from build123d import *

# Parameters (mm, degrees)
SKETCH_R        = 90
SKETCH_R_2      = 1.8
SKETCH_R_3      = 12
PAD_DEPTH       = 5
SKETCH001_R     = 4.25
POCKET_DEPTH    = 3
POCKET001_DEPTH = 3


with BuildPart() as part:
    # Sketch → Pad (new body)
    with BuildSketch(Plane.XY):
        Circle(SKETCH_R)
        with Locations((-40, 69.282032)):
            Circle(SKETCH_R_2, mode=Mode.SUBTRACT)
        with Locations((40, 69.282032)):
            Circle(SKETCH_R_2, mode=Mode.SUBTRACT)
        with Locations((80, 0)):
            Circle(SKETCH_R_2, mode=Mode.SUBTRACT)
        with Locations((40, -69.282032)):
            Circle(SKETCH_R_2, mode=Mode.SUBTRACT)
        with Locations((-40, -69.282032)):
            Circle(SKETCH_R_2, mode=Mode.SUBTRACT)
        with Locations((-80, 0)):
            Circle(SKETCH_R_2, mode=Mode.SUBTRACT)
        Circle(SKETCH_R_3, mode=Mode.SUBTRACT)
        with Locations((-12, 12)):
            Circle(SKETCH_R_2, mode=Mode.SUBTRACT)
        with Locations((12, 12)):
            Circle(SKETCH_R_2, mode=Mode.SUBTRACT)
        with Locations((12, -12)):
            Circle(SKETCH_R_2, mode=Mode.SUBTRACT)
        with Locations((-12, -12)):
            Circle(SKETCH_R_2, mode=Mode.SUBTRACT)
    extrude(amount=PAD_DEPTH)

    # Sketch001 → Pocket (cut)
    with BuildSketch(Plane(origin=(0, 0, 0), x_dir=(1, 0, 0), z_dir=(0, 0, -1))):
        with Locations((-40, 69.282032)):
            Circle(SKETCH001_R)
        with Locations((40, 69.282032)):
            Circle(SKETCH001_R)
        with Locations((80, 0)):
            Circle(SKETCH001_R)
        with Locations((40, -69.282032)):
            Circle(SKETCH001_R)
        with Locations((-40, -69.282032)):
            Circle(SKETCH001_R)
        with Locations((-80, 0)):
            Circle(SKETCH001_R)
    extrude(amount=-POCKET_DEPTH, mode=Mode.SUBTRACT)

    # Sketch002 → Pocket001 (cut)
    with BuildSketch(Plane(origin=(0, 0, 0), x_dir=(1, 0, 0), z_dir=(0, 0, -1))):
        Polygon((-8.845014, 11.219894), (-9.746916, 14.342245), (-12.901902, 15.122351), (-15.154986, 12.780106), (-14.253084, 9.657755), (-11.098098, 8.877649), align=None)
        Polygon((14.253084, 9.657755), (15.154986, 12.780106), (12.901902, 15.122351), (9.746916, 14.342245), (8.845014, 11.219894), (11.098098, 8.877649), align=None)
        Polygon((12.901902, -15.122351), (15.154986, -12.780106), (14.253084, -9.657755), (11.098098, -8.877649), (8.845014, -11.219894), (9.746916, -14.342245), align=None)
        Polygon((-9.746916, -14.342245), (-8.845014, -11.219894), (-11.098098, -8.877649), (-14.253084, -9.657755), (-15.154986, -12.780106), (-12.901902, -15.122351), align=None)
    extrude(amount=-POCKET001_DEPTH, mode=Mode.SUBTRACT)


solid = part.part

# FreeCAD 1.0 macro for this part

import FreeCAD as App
import Part
import Sketcher


def add_polygon(sketch, points):
    """Adds a closed chain of lines whose ends are joined by coincident constraints."""
    first, n = sketch.GeometryCount, len(points)
    for a, b in zip(points, points[1:] + points[:1]):
        sketch.addGeometry(Part.LineSegment(App.Vector(*a, 0), App.Vector(*b, 0)), False)
    for i in range(n):
        sketch.addConstraint(Sketcher.Constraint("Coincident", first + i, 2, first + (i + 1) % n, 1))

doc = App.newDocument("Part")
params = doc.addObject("Spreadsheet::Sheet", "Params")
for row, (alias, value) in enumerate([
    ("sketch1_diameter", "180 mm"),
    ("sketch1_diameter2", "24 mm"),
    ("sketch1_diameter3", "3.6 mm"),
    ("pad1_length", "5 mm"),
    ("sketch2_diameter", "8.5 mm"),
    ("pocket1_length", "3 mm"),
    ("sketch3_length", "3.25 mm"),
    ("pocket2_length", "3 mm"),
], start=1):
    params.set(f"A{row}", alias)
    params.set(f"B{row}", "=" + value)
    params.setAlias(f"B{row}", alias)

body = doc.addObject("PartDesign::Body", "Body")

# Sketch on XY plane
sketch1 = doc.addObject("Sketcher::SketchObject", "Sketch")
body.addObject(sketch1)
sketch1.AttachmentSupport = (doc.XY_Plane, [""])
sketch1.MapMode = "FlatFace"
sketch1.addGeometry([
    Part.Circle(App.Vector(0, 0, 0), App.Vector(0, 0, 1), 90),  # 0
    Part.Circle(App.Vector(-40, -69.3, 0), App.Vector(0, 0, 1), 1.8),  # 1
    Part.Circle(App.Vector(-80, 0, 0), App.Vector(0, 0, 1), 1.8),  # 2
    Part.Circle(App.Vector(-12, -12, 0), App.Vector(0, 0, 1), 1.8),  # 3
    Part.Circle(App.Vector(40, -69.3, 0), App.Vector(0, 0, 1), 1.8),  # 4
    Part.Circle(App.Vector(12, -12, 0), App.Vector(0, 0, 1), 1.8),  # 5
    Part.Circle(App.Vector(0, 0, 0), App.Vector(0, 0, 1), 12),  # 6
    Part.Circle(App.Vector(80, 0, 0), App.Vector(0, 0, 1), 1.8),  # 7
    Part.Circle(App.Vector(-12, 12, 0), App.Vector(0, 0, 1), 1.8),  # 8
    Part.Circle(App.Vector(-40, 69.3, 0), App.Vector(0, 0, 1), 1.8),  # 9
    Part.Circle(App.Vector(12, 12, 0), App.Vector(0, 0, 1), 1.8),  # 10
    Part.Circle(App.Vector(40, 69.3, 0), App.Vector(0, 0, 1), 1.8),  # 11
], False)
sketch1.addConstraint([
    Sketcher.Constraint("Coincident", 0, 3, -1, 1),
    Sketcher.Constraint("Coincident", 6, 3, -1, 1),
    Sketcher.Constraint("Equal", 1, 2),
    Sketcher.Constraint("Equal", 2, 3),
    Sketcher.Constraint("Equal", 3, 4),
    Sketcher.Constraint("Equal", 4, 5),
    Sketcher.Constraint("Equal", 5, 7),
    Sketcher.Constraint("Equal", 7, 8),
    Sketcher.Constraint("Equal", 8, 9),
    Sketcher.Constraint("Equal", 9, 10),
    Sketcher.Constraint("Equal", 10, 11),
    Sketcher.Constraint("Symmetric", 2, 3, 7, 3, -1, 1),
    Sketcher.Constraint("Symmetric", 5, 3, 8, 3, -1, 1),
    Sketcher.Constraint("Symmetric", 4, 3, 9, 3, -1, 1),
    Sketcher.Constraint("Symmetric", 3, 3, 10, 3, -1, 1),
    Sketcher.Constraint("Symmetric", 1, 3, 11, 3, -1, 1),
    Sketcher.Constraint("Symmetric", 1, 3, 4, 3, -2),
    Sketcher.Constraint("Symmetric", 3, 3, 5, 3, -2),
    Sketcher.Constraint("PointOnObject", 2, 3, -1),
    Sketcher.Constraint("Diameter", 0, 180.0),
    Sketcher.Constraint("Diameter", 6, 24.0),
    Sketcher.Constraint("Diameter", 1, 3.6),
    Sketcher.Constraint("DistanceX", 1, 3, -1, 1, 40.0),
    Sketcher.Constraint("DistanceX", 2, 3, -1, 1, 80.0),
    Sketcher.Constraint("DistanceX", 3, 3, -1, 1, 12.0),
    Sketcher.Constraint("DistanceY", 3, 3, -1, 1, 12.0),
    Sketcher.Constraint("DistanceY", 1, 3, -1, 1, 69.282032),
])
sketch1.setExpression("Constraints[19]", "Params.sketch1_diameter")
sketch1.setExpression("Constraints[20]", "Params.sketch1_diameter2")
sketch1.setExpression("Constraints[21]", "Params.sketch1_diameter3")
pad1 = doc.addObject("PartDesign::Pad", "Pad")
body.addObject(pad1)
pad1.Profile = sketch1
pad1.setExpression("Length", "Params.pad1_length")

# Sketch on XY plane
sketch2 = doc.addObject("Sketcher::SketchObject", "Sketch001")
body.addObject(sketch2)
sketch2.AttachmentSupport = (doc.XY_Plane, [""])
sketch2.MapMode = "FlatFace"
sketch2.addGeometry([
    Part.Circle(App.Vector(-40, -69.3, 0), App.Vector(0, 0, 1), 4.2),  # 0
    Part.Circle(App.Vector(40, -69.3, 0), App.Vector(0, 0, 1), 4.2),  # 1
    Part.Circle(App.Vector(80, 0, 0), App.Vector(0, 0, 1), 4.2),  # 2
    Part.Circle(App.Vector(40, 69.3, 0), App.Vector(0, 0, 1), 4.2),  # 3
    Part.Circle(App.Vector(-40, 69.3, 0), App.Vector(0, 0, 1), 4.2),  # 4
    Part.Circle(App.Vector(-80, 0, 0), App.Vector(0, 0, 1), 4.2),  # 5
], False)
sketch2.addConstraint([
    Sketcher.Constraint("Equal", 0, 1),
    Sketcher.Constraint("Equal", 1, 2),
    Sketcher.Constraint("Equal", 2, 3),
    Sketcher.Constraint("Equal", 3, 4),
    Sketcher.Constraint("Equal", 4, 5),
    Sketcher.Constraint("Symmetric", 0, 3, 3, 3, -1, 1),
    Sketcher.Constraint("Symmetric", 1, 3, 4, 3, -1, 1),
    Sketcher.Constraint("Symmetric", 2, 3, 5, 3, -1, 1),
    Sketcher.Constraint("Symmetric", 0, 3, 1, 3, -2),
    Sketcher.Constraint("PointOnObject", 2, 3, -1),
    Sketcher.Constraint("Diameter", 0, 8.5),
    Sketcher.Constraint("DistanceX", 0, 3, -1, 1, 40.0),
    Sketcher.Constraint("DistanceX", -1, 1, 2, 3, 80.0),
    Sketcher.Constraint("DistanceY", 0, 3, -1, 1, 69.282032),
])
sketch2.setExpression("Constraints[10]", "Params.sketch2_diameter")
pocket1 = doc.addObject("PartDesign::Pocket", "Pocket")
body.addObject(pocket1)
pocket1.Profile = sketch2
pocket1.setExpression("Length", "Params.pocket1_length")
pocket1.Reversed = True

# Sketch on XY plane
sketch3 = doc.addObject("Sketcher::SketchObject", "Sketch002")
body.addObject(sketch3)
sketch3.AttachmentSupport = (doc.XY_Plane, [""])
sketch3.MapMode = "FlatFace"
add_polygon(sketch3, [(-8.8, -11.2), (-9.7, -14.3), (-12.9, -15.1), (-15.2, -12.8), (-14.3, -9.7), (-11.1, -8.9)])  # lines 0-5
add_polygon(sketch3, [(14.3, -9.7), (15.2, -12.8), (12.9, -15.1), (9.7, -14.3), (8.8, -11.2), (11.1, -8.9)])  # lines 6-11
add_polygon(sketch3, [(12.9, 15.1), (15.2, 12.8), (14.3, 9.7), (11.1, 8.9), (8.8, 11.2), (9.7, 14.3)])  # lines 12-17
add_polygon(sketch3, [(-9.7, 14.3), (-8.8, 11.2), (-11.1, 8.9), (-14.3, 9.7), (-15.2, 12.8), (-12.9, 15.1)])  # lines 18-23
sketch3.addConstraint([
    Sketcher.Constraint("Symmetric", 2, 2, 12, 2, -1, 1),
    Sketcher.Constraint("Symmetric", 3, 2, 13, 2, -1, 1),
    Sketcher.Constraint("Symmetric", 4, 2, 14, 2, -1, 1),
    Sketcher.Constraint("Symmetric", 5, 2, 15, 2, -1, 1),
    Sketcher.Constraint("Symmetric", 0, 2, 16, 2, -1, 1),
    Sketcher.Constraint("Symmetric", 1, 2, 17, 2, -1, 1),
    Sketcher.Constraint("Symmetric", 9, 2, 18, 2, -1, 1),
    Sketcher.Constraint("Symmetric", 10, 2, 19, 2, -1, 1),
    Sketcher.Constraint("Symmetric", 11, 2, 20, 2, -1, 1),
    Sketcher.Constraint("Symmetric", 6, 2, 21, 2, -1, 1),
    Sketcher.Constraint("Symmetric", 7, 2, 22, 2, -1, 1),
    Sketcher.Constraint("Symmetric", 8, 2, 23, 2, -1, 1),
    Sketcher.Constraint("Symmetric", 2, 2, 6, 2, -2),
    Sketcher.Constraint("Symmetric", 1, 2, 7, 2, -2),
    Sketcher.Constraint("Symmetric", 0, 2, 8, 2, -2),
    Sketcher.Constraint("Symmetric", 5, 2, 9, 2, -2),
    Sketcher.Constraint("Symmetric", 4, 2, 10, 2, -2),
    Sketcher.Constraint("Symmetric", 3, 2, 11, 2, -2),
    Sketcher.Constraint("Parallel", 0, 3),
    Sketcher.Constraint("Parallel", 1, 4),
    Sketcher.Constraint("Parallel", 2, 5),
    Sketcher.Constraint("Equal", 0, 1),
    Sketcher.Constraint("Equal", 1, 2),
    Sketcher.Constraint("Equal", 2, 3),
    Sketcher.Constraint("DistanceX", 5, 2, 6, 2, 24.0),
    Sketcher.Constraint("DistanceY", 9, 2, 12, 2, 24.0),
    Sketcher.Constraint("Distance", 0, 3.25),
    Sketcher.Constraint("DistanceX", 2, 2, 3, 2, 0.901902),
    Sketcher.Constraint("DistanceY", 10, 2, 14, 2, 17.755298),
    Sketcher.Constraint("DistanceX", 2, 2, 0, 2, 5.40807),
])
sketch3.setExpression("Constraints[50]", "Params.sketch3_length")
pocket2 = doc.addObject("PartDesign::Pocket", "Pocket001")
body.addObject(pocket2)
pocket2.Profile = sketch3
pocket2.setExpression("Length", "Params.pocket2_length")
pocket2.Reversed = True

doc.recompute()
